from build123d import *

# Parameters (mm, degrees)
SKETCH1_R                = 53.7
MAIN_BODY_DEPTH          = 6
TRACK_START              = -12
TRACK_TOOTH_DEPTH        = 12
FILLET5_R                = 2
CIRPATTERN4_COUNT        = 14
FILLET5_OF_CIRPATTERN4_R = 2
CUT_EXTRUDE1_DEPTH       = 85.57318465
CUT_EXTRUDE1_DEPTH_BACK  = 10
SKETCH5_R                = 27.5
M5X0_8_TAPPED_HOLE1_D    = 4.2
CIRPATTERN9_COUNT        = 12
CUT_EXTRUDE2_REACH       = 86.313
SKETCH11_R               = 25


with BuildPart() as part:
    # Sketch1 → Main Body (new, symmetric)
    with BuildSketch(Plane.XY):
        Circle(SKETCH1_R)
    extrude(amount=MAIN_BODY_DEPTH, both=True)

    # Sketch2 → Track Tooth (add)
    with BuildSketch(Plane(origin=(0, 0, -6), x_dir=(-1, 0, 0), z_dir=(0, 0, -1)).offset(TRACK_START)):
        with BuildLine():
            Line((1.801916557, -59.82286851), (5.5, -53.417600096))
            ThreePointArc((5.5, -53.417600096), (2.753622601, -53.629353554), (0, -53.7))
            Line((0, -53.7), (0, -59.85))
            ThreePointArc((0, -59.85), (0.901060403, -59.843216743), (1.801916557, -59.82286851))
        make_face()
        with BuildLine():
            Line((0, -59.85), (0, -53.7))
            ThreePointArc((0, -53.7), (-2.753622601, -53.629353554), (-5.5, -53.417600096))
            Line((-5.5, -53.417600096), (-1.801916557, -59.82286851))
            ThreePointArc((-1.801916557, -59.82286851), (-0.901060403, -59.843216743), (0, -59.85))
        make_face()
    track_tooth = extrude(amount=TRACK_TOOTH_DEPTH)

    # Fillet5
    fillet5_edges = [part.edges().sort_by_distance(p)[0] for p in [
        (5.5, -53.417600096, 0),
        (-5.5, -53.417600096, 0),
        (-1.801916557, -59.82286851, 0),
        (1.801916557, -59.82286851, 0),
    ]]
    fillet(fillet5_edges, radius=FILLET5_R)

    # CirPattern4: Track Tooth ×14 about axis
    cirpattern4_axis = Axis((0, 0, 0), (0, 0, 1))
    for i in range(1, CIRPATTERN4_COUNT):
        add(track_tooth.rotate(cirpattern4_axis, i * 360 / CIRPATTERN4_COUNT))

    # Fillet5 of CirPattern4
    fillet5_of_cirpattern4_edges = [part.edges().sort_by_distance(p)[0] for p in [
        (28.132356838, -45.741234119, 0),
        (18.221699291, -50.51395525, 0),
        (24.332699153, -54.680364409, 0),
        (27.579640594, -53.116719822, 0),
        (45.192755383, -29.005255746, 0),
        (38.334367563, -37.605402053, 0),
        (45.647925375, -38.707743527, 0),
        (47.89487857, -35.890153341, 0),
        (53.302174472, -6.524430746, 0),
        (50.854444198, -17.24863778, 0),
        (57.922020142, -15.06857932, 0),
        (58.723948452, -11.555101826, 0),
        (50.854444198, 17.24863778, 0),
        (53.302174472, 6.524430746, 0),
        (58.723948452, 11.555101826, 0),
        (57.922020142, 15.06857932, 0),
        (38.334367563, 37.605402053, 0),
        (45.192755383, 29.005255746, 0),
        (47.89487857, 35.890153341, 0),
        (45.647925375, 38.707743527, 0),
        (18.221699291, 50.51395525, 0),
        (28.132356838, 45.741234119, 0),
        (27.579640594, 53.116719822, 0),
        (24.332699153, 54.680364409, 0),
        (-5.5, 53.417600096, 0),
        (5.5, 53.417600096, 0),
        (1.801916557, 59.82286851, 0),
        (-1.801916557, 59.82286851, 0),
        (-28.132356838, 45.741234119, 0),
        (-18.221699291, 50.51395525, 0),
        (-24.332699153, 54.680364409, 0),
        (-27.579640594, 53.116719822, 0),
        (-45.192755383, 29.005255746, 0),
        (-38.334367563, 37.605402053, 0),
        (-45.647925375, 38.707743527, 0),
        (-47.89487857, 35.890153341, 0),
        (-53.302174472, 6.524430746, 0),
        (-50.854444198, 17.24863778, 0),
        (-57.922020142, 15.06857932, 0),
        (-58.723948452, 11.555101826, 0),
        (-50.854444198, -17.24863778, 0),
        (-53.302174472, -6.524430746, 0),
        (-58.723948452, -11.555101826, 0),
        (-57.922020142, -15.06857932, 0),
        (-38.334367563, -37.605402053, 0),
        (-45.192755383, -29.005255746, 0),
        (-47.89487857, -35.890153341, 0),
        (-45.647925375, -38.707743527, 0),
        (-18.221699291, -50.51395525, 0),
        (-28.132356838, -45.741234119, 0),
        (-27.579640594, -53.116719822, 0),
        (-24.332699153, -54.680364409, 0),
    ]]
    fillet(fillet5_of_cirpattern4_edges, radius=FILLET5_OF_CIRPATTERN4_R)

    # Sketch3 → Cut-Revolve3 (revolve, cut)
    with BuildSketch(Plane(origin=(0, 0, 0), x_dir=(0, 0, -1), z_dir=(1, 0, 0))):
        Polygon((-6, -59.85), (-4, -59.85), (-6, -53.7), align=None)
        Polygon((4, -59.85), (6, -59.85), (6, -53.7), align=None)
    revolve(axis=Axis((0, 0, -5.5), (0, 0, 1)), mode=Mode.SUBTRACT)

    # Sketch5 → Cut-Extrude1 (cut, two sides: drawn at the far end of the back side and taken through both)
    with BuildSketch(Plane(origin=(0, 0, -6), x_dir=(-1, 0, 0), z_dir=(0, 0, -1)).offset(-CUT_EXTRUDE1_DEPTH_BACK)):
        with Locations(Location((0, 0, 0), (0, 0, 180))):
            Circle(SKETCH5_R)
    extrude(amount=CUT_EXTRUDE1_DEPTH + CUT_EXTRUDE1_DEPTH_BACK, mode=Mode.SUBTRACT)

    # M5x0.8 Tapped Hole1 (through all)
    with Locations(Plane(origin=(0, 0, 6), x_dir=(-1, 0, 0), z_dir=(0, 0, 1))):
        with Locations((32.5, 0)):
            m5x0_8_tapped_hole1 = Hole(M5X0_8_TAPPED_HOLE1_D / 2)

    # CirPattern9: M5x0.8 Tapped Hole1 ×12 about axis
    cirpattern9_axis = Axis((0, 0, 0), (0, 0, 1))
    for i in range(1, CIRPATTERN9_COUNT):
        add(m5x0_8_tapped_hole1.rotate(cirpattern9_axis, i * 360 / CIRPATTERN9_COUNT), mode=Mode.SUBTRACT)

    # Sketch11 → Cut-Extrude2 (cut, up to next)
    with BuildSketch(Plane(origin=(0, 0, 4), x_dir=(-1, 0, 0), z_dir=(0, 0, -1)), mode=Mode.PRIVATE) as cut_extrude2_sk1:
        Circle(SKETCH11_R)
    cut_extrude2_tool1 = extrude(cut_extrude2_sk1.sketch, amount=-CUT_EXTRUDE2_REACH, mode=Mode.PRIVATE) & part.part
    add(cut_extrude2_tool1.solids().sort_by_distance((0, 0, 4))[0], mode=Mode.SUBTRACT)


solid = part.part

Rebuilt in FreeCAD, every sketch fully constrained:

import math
import FreeCAD as App
import Part
import Sketcher

V = App.Vector
Q = App.Units.Quantity


def edges_at(feature, points):
    """Names of the edges that pass closest to the given points."""
    edges = feature.Shape.Edges
    near = lambda p: min(range(len(edges)), key=lambda i: edges[i].distToShape(Part.Vertex(*p))[0])
    return sorted({f"Edge{near(p) + 1}" for p in points})

doc = App.newDocument("Part")
body = doc.addObject("PartDesign::Body", "Body")

# Sketch on XY plane
sketch1 = body.newObject("Sketcher::SketchObject", "Sketch")
sketch1.AttachmentSupport = (doc.getObject("XY_Plane"), [""])
sketch1.MapMode = "FlatFace"
sketch1.addGeometry(Part.Circle(V(0, 0, 0), V(0, 0, 1), 53.7), False)
sketch1.addConstraint([
    Sketcher.Constraint("Coincident", 0, 3, -1, 1),
    Sketcher.Constraint("Diameter", 0, 107.4),
])
pad1 = body.newObject("PartDesign::Pad", "Pad")
pad1.Profile = sketch1
pad1.Length = 12
pad1.Midplane = True

# Sketch on XY plane
sketch2 = body.newObject("Sketcher::SketchObject", "Sketch001")
sketch2.AttachmentSupport = (doc.getObject("XY_Plane"), [""])
sketch2.MapMode = "FlatFace"
sketch2.AttachmentOffset = App.Placement(V(0, 0, 6), App.Rotation())
sketch2.addGeometry([
    Part.LineSegment(V(-1.801917, -59.822869, 0), V(-5.5, -53.4176, 0)),  # 0
    Part.ArcOfCircle(Part.Circle(V(0, 0, 0), V(0, 0, 1), 53.7), math.radians(-95.878591), math.radians(-90)),  # 1
    Part.ArcOfCircle(Part.Circle(V(0, 0, 0), V(0, 0, 1), 53.7), math.radians(-90), math.radians(-84.121409)),  # 2
    Part.LineSegment(V(5.5, -53.4176, 0), V(1.801917, -59.822869, 0)),  # 3
    Part.ArcOfCircle(Part.Circle(V(0, 0.000002, 0), V(0, 0, 1), 59.850002), math.radians(-90), math.radians(-88.274723)),  # 4
    Part.ArcOfCircle(Part.Circle(V(0, 0.000002, 0), V(0, 0, 1), 59.850002), math.radians(-91.725277), math.radians(-90)),  # 5
], False)
sketch2.addConstraint([
    Sketcher.Constraint("Coincident", 0, 2, 1, 1),
    Sketcher.Constraint("Tangent", 1, 2, 2, 1),
    Sketcher.Constraint("Coincident", 2, 2, 3, 1),
    Sketcher.Constraint("Coincident", 3, 2, 4, 2),
    Sketcher.Constraint("Tangent", 4, 1, 5, 2),
    Sketcher.Constraint("Coincident", 5, 1, 0, 1),
    Sketcher.Constraint("Coincident", 1, 3, -1, 1),
    Sketcher.Constraint("Coincident", 4, 3, -1, 1),
    Sketcher.Constraint("Equal", 1, 2),
    Sketcher.Constraint("Equal", 4, 5),
    Sketcher.Constraint("PointOnObject", 1, 2, -2),
    Sketcher.Constraint("PointOnObject", 4, 1, -2),
    Sketcher.Constraint("Horizontal", 0, 2, 2, 2),
    Sketcher.Constraint("Horizontal", 3, 2, 5, 1),
    Sketcher.Constraint("Radius", 1, 53.7),
    Sketcher.Constraint("Angle", 0, Q("120 deg")),
    Sketcher.Constraint("Radius", 4, 59.850002),
    Sketcher.Constraint("DistanceX", 0, 2, 2, 2, 11.0),
])
pad2 = body.newObject("PartDesign::Pad", "Pad001")
pad2.Profile = sketch2
pad2.Length = 12
pad2.Reversed = True
doc.recompute()

fillet = body.newObject("PartDesign::Fillet", "Fillet")
fillet.Base = (pad2, edges_at(pad2, [
    (5.5, -53.418, 0),
    (-5.5, -53.418, 0),
    (-1.802, -59.823, 0),
    (1.802, -59.823, 0),
]))
fillet.Radius = 2
doc.recompute()

polarpattern = body.newObject("PartDesign::PolarPattern", "PolarPattern")
polarpattern.Originals = [pad2]
polarpattern.Axis = (doc.getObject("Z_Axis"), [""])
polarpattern.Angle = 360
polarpattern.Occurrences = 14
body.Tip = polarpattern
doc.recompute()

fillet2 = body.newObject("PartDesign::Fillet", "Fillet001")
fillet2.Base = (polarpattern, edges_at(polarpattern, [
    (28.132, -45.741, 0),
    (18.222, -50.514, 0),
    (24.333, -54.68, 0),
    (27.58, -53.117, 0),
    (45.193, -29.005, 0),
    (38.334, -37.605, 0),
    (45.648, -38.708, 0),
    (47.895, -35.89, 0),
    (53.302, -6.524, 0),
    (50.854, -17.249, 0),
    (57.922, -15.069, 0),
    (58.724, -11.555, 0),
    (50.854, 17.249, 0),
    (53.302, 6.524, 0),
    (58.724, 11.555, 0),
    (57.922, 15.069, 0),
    (38.334, 37.605, 0),
    (45.193, 29.005, 0),
    (47.895, 35.89, 0),
    (45.648, 38.708, 0),
    (18.222, 50.514, 0),
    (28.132, 45.741, 0),
    (27.58, 53.117, 0),
    (24.333, 54.68, 0),
    (-5.5, 53.418, 0),
    (5.5, 53.418, 0),
    (1.802, 59.823, 0),
    (-1.802, 59.823, 0),
    (-28.132, 45.741, 0),
    (-18.222, 50.514, 0),
    (-24.333, 54.68, 0),
    (-27.58, 53.117, 0),
    (-45.193, 29.005, 0),
    (-38.334, 37.605, 0),
    (-45.648, 38.708, 0),
    (-47.895, 35.89, 0),
    (-53.302, 6.524, 0),
    (-50.854, 17.249, 0),
    (-57.922, 15.069, 0),
    (-58.724, 11.555, 0),
    (-50.854, -17.249, 0),
    (-53.302, -6.524, 0),
    (-58.724, -11.555, 0),
    (-57.922, -15.069, 0),
    (-38.334, -37.605, 0),
    (-45.193, -29.005, 0),
    (-47.895, -35.89, 0),
    (-45.648, -38.708, 0),
    (-18.222, -50.514, 0),
    (-28.132, -45.741, 0),
    (-27.58, -53.117, 0),
    (-24.333, -54.68, 0),
]))
fillet2.Radius = 2

# Sketch on YZ plane
sketch3 = body.newObject("Sketcher::SketchObject", "Sketch002")
sketch3.AttachmentSupport = (doc.getObject("YZ_Plane"), [""])
sketch3.MapMode = "FlatFace"
sketch3.addGeometry([
    Part.LineSegment(V(-59.85, 6, 0), V(-59.85, 4, 0)),  # 0
    Part.LineSegment(V(-59.85, 4, 0), V(-53.7, 6, 0)),  # 1
    Part.LineSegment(V(-53.7, 6, 0), V(-59.85, 6, 0)),  # 2
    Part.LineSegment(V(-59.85, -4, 0), V(-59.85, -6, 0)),  # 3
    Part.LineSegment(V(-59.85, -6, 0), V(-53.7, -6, 0)),  # 4
    Part.LineSegment(V(-53.7, -6, 0), V(-59.85, -4, 0)),  # 5
], False)
sketch3.addConstraint([
    Sketcher.Constraint("Coincident", 0, 2, 1, 1),
    Sketcher.Constraint("Coincident", 1, 2, 2, 1),
    Sketcher.Constraint("Coincident", 2, 2, 0, 1),
    Sketcher.Constraint("Coincident", 3, 2, 4, 1),
    Sketcher.Constraint("Coincident", 4, 2, 5, 1),
    Sketcher.Constraint("Coincident", 5, 2, 3, 1),
    Sketcher.Constraint("Vertical", 0),
    Sketcher.Constraint("Horizontal", 2),
    Sketcher.Constraint("Vertical", 3),
    Sketcher.Constraint("Horizontal", 4),
    Sketcher.Constraint("Symmetric", 2, 2, 3, 2, -1),
    Sketcher.Constraint("Vertical", 1, 2, 4, 2),
    Sketcher.Constraint("Equal", 0, 3),
    Sketcher.Constraint("DistanceY", 0, 2, 0, 1, 2.0),
    Sketcher.Constraint("DistanceY", -1, 1, 0, 2, 4.0),
    Sketcher.Constraint("DistanceX", 2, 2, 2, 1, 6.15),
    Sketcher.Constraint("DistanceX", 1, 2, -1, 1, 53.7),
])
groove = body.newObject("PartDesign::Groove", "Groove")
groove.Profile = sketch3
groove.ReferenceAxis = (sketch3, ["V_Axis"])
groove.Angle = 360

# Sketch on XY plane
sketch4 = body.newObject("Sketcher::SketchObject", "Sketch003")
sketch4.AttachmentSupport = (doc.getObject("XY_Plane"), [""])
sketch4.MapMode = "FlatFace"
sketch4.AttachmentOffset = App.Placement(V(0, 0, -6), App.Rotation())
sketch4.addGeometry(Part.Circle(V(0, 0, 0), V(0, 0, 1), 27.5), False)
sketch4.addConstraint([
    Sketcher.Constraint("Coincident", 0, 3, -1, 1),
    Sketcher.Constraint("Diameter", 0, 55.0),
])
pocket1 = body.newObject("PartDesign::Pocket", "Pocket")
pocket1.Profile = sketch4
pocket1.Type = "TwoLengths"
pocket1.Length = 85.573185
pocket1.Length2 = 10

# Sketch on XY plane
sketch5 = body.newObject("Sketcher::SketchObject", "Sketch004")
sketch5.AttachmentSupport = (doc.getObject("XY_Plane"), [""])
sketch5.MapMode = "FlatFace"
sketch5.AttachmentOffset = App.Placement(V(0, 0, 6), App.Rotation())
sketch5.addGeometry(Part.Circle(V(-32.5, 0, 0), V(0, 0, 1), 2.1), False)
sketch5.addConstraint([
    Sketcher.Constraint("PointOnObject", 0, 3, -1),
    Sketcher.Constraint("Diameter", 0, 4.2),
    Sketcher.Constraint("DistanceX", 0, 3, -1, 1, 32.5),
])
doc.recompute()
hole = body.newObject("PartDesign::Hole", "Hole")
hole.Profile = sketch5
hole.ThreadType = "None"
hole.Diameter = 4.2
hole.DepthType = "ThroughAll"
doc.recompute()

polarpattern2 = body.newObject("PartDesign::PolarPattern", "PolarPattern001")
polarpattern2.Originals = [hole]
polarpattern2.Axis = (doc.getObject("Z_Axis"), [""])
polarpattern2.Angle = 360
polarpattern2.Occurrences = 12
body.Tip = polarpattern2

# Sketch on XY plane
sketch6 = body.newObject("Sketcher::SketchObject", "Sketch005")
sketch6.AttachmentSupport = (doc.getObject("XY_Plane"), [""])
sketch6.MapMode = "FlatFace"
sketch6.AttachmentOffset = App.Placement(V(0, 0, 4), App.Rotation())
sketch6.addGeometry(Part.Circle(V(0, 0, 0), V(0, 0, 1), 25), False)
sketch6.addConstraint([
    Sketcher.Constraint("Coincident", 0, 3, -1, 1),
    Sketcher.Constraint("Diameter", 0, 50.0),
])
pocket2 = body.newObject("PartDesign::Pocket", "Pocket001")
pocket2.Profile = sketch6
pocket2.Type = "UpToFirst"
pocket2.Reversed = True

doc.recompute()
